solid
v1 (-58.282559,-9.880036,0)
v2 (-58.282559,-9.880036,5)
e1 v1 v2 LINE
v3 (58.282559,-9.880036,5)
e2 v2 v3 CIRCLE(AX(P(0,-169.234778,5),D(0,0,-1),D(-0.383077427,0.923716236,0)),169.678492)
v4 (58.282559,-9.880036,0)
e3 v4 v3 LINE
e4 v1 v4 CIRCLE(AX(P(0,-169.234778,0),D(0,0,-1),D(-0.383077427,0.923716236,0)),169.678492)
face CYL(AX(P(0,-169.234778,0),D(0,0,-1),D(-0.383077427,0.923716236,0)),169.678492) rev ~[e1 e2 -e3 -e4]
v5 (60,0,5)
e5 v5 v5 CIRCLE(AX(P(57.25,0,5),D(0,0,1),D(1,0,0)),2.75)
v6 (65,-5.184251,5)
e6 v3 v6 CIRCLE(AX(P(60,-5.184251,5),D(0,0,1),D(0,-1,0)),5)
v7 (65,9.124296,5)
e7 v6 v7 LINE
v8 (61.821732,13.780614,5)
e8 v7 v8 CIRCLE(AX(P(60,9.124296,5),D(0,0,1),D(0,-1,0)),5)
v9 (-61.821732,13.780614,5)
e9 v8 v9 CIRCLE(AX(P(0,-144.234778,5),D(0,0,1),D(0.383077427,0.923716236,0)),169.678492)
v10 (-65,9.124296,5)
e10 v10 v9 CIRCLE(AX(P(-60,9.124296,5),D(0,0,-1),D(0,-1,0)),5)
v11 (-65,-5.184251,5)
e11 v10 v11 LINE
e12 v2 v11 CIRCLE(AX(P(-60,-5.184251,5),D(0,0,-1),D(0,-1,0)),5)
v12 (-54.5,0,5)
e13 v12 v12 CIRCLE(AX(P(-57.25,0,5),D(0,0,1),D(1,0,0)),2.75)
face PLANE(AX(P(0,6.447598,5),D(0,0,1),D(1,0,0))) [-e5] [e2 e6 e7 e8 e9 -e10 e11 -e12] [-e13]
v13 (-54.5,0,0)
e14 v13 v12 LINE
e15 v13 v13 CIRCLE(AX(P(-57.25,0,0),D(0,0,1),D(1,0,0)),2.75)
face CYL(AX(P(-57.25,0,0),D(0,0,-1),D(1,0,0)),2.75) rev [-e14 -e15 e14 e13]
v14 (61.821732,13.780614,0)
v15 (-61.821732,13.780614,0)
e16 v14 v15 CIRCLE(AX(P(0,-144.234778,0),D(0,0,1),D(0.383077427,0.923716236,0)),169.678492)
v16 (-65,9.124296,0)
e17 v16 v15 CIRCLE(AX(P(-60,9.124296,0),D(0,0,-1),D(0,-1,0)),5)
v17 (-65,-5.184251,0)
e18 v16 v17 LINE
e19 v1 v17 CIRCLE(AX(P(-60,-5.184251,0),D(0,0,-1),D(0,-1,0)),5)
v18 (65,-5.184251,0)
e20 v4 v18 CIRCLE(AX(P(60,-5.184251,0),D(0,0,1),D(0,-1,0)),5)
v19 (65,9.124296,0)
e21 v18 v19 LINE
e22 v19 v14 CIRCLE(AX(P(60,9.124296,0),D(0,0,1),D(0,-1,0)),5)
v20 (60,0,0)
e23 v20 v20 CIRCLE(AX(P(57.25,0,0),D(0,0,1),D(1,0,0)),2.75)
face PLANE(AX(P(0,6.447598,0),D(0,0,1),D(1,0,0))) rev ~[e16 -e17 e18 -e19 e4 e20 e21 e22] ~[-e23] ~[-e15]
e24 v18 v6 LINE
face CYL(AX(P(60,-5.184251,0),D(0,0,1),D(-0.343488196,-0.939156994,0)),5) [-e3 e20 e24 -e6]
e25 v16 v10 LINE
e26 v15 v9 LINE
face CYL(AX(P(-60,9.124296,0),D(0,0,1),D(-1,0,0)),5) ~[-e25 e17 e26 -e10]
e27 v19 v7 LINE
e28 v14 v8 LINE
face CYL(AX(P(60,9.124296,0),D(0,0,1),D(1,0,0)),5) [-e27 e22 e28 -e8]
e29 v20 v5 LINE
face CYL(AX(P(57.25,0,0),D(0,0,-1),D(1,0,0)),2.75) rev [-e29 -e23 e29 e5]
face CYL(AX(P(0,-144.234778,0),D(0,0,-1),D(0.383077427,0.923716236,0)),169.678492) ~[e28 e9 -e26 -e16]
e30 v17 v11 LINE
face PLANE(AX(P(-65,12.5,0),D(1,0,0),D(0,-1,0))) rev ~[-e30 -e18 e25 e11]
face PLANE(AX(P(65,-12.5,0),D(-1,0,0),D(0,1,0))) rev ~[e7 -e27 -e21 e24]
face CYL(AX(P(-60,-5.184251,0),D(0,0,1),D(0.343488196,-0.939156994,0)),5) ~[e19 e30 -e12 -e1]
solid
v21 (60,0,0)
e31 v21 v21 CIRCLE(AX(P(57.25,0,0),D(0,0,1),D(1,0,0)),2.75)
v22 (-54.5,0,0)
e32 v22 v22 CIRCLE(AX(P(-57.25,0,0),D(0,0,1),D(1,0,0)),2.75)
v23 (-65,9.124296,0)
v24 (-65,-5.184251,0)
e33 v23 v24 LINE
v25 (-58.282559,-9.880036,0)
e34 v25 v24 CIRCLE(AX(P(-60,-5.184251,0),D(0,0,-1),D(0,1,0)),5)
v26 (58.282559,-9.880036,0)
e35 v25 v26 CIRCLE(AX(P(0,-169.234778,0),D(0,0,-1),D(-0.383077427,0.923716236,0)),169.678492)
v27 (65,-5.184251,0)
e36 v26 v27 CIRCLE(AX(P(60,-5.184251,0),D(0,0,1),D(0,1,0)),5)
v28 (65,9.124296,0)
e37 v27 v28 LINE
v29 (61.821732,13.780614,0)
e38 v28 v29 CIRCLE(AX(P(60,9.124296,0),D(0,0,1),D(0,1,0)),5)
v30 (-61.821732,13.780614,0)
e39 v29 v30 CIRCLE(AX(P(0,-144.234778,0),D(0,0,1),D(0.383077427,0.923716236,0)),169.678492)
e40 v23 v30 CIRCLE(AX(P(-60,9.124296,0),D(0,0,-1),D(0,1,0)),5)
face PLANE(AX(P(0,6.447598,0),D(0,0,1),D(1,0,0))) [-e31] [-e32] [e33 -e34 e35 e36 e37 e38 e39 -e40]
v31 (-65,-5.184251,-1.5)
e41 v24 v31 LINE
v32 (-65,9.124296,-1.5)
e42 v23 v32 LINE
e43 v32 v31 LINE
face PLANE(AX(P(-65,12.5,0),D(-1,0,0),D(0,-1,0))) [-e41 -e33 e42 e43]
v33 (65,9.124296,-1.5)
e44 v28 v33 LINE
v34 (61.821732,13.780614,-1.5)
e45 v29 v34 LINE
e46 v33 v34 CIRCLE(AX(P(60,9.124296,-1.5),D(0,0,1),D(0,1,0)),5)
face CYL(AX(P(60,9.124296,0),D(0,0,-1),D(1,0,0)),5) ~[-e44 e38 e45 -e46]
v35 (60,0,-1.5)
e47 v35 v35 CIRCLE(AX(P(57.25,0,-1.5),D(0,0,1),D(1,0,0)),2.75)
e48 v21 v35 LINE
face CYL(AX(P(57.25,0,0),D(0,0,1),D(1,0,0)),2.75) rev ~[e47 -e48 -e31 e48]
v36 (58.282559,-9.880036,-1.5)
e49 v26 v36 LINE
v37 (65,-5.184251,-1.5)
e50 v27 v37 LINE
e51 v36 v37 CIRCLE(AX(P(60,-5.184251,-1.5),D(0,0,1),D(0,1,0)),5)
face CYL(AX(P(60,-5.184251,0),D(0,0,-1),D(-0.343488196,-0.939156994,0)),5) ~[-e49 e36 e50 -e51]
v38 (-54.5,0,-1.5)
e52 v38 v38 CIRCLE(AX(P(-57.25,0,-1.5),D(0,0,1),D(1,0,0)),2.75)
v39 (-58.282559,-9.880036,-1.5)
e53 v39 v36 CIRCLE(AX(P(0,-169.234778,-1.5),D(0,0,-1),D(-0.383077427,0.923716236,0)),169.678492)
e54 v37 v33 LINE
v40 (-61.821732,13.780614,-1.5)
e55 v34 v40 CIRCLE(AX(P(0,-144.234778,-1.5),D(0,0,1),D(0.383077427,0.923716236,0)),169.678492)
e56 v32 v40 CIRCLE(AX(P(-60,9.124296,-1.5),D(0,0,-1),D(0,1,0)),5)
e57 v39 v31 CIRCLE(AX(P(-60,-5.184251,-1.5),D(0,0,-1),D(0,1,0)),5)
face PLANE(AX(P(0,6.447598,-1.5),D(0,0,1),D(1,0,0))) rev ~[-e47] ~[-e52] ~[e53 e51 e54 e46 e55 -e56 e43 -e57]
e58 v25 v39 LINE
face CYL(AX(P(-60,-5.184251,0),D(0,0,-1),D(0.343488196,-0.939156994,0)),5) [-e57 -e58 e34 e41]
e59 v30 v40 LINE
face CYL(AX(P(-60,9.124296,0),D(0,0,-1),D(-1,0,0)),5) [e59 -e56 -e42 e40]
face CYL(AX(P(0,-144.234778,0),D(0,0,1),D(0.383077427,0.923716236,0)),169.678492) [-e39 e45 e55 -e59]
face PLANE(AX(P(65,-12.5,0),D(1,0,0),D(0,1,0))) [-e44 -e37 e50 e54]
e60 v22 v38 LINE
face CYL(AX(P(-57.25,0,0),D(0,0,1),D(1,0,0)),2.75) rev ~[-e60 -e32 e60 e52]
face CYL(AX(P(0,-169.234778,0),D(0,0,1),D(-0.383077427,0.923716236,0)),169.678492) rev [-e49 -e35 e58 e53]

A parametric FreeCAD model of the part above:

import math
import FreeCAD as App
import Part
import Sketcher

V = App.Vector


def edges_at(feature, points):
    """Names of the edges that pass closest to the given points."""
    edges = feature.Shape.Edges
    near = lambda p: min(range(len(edges)), key=lambda i: edges[i].distToShape(Part.Vertex(*p))[0])
    return sorted({f"Edge{near(p) + 1}" for p in points})

doc = App.newDocument("Part")
params = doc.addObject("Spreadsheet::Sheet", "Params")
for row, (alias, value) in enumerate([
    ("sketch1_diameter", "5.5 mm"),
    ("sketch1_height", "25 mm"),
    ("pad1_length", "5 mm"),
    ("fillet_radius", "5 mm"),
    ("sketch2_diameter", "5.5 mm"),
    ("sketch2_height", "25 mm"),
    ("pad2_length", "1.5 mm"),
    ("fillet2_radius", "5 mm"),
], start=1):
    params.set(f"A{row}", alias)
    params.set(f"B{row}", "=" + value)
    params.setAlias(f"B{row}", alias)

body = doc.addObject("PartDesign::Body", "Body")

sketch1 = body.newObject("Sketcher::SketchObject", "Sketch")
sketch1.AttachmentSupport = (doc.getObject("XY_Plane"), [""])
sketch1.MapMode = "FlatFace"
sketch1.addGeometry([
    Part.ArcOfCircle(Part.Circle(V(0, -169.2, 0), V(0, 0, 1), 169.7), math.radians(67), math.radians(113)),
    Part.LineSegment(V(65, -12.5, 0), V(65, 12.5, 0)),
    Part.ArcOfCircle(Part.Circle(V(0, -144.2, 0), V(0, 0, 1), 169.7), math.radians(67), math.radians(113)),
    Part.LineSegment(V(-65, 12.5, 0), V(-65, -12.5, 0)),
    Part.Circle(V(-57.2, 0, 0), V(0, 0, 1), 2.8),
    Part.Circle(V(57.2, 0, 0), V(0, 0, 1), 2.8),
], False)
sketch1.addConstraint([
    Sketcher.Constraint("Coincident", 0, 1, 1, 1),
    Sketcher.Constraint("Coincident", 1, 2, 2, 1),
    Sketcher.Constraint("Coincident", 2, 2, 3, 1),
    Sketcher.Constraint("Coincident", 3, 2, 0, 2),
    Sketcher.Constraint("Vertical", 1),
    Sketcher.Constraint("Vertical", 3),
    Sketcher.Constraint("Equal", 0, 2),
    Sketcher.Constraint("Equal", 4, 5),
    Sketcher.Constraint("Symmetric", 4, 3, 5, 3, -1, 1),
    Sketcher.Constraint("Symmetric", 0, 1, 2, 2, -1, 1),
    Sketcher.Constraint("PointOnObject", 0, 3, -2),
    Sketcher.Constraint("PointOnObject", 2, 3, -2),
    Sketcher.Constraint("PointOnObject", 4, 3, -1),
    Sketcher.Constraint("Diameter", 4, 5.5),
    Sketcher.Constraint("DistanceY", 1, 1, 1, 2, 25.0),
    Sketcher.Constraint("DistanceX", -1, 1, 0, 1, 65.0),
    Sketcher.Constraint("DistanceX", 4, 3, 5, 3, 114.5),
    Sketcher.Constraint("Radius", 0, 169.678492),
])
sketch1.setExpression("Constraints[13]", "Params.sketch1_diameter")
sketch1.setExpression("Constraints[14]", "Params.sketch1_height")
pad1 = body.newObject("PartDesign::Pad", "Pad")
pad1.Profile = sketch1
pad1.setExpression("Length", "Params.pad1_length")
doc.recompute()

fillet = body.newObject("PartDesign::Fillet", "Fillet")
fillet.Base = (pad1, edges_at(pad1, [
    (-65, -12.5, 2.5),
    (65, -12.5, 2.5),
    (65, 12.5, 2.5),
    (-65, 12.5, 2.5),
]))
fillet.setExpression("Radius", "Params.fillet_radius")
body2 = doc.addObject("PartDesign::Body", "Body001")

sketch2 = body2.newObject("Sketcher::SketchObject", "Sketch001")
sketch2.AttachmentSupport = (doc.getObject("XY_Plane001"), [""])
sketch2.MapMode = "FlatFace"
sketch2.addGeometry([
    Part.ArcOfCircle(Part.Circle(V(0, -169.2, 0), V(0, 0, 1), 169.7), math.radians(67), math.radians(113)),
    Part.LineSegment(V(65, -12.5, 0), V(65, 12.5, 0)),
    Part.ArcOfCircle(Part.Circle(V(0, -144.2, 0), V(0, 0, 1), 169.7), math.radians(67), math.radians(113)),
    Part.LineSegment(V(-65, 12.5, 0), V(-65, -12.5, 0)),
    Part.Circle(V(-57.2, 0, 0), V(0, 0, 1), 2.8),
    Part.Circle(V(57.2, 0, 0), V(0, 0, 1), 2.8),
], False)
sketch2.addConstraint([
    Sketcher.Constraint("Coincident", 0, 1, 1, 1),
    Sketcher.Constraint("Coincident", 1, 2, 2, 1),
    Sketcher.Constraint("Coincident", 2, 2, 3, 1),
    Sketcher.Constraint("Coincident", 3, 2, 0, 2),
    Sketcher.Constraint("Vertical", 1),
    Sketcher.Constraint("Vertical", 3),
    Sketcher.Constraint("Equal", 0, 2),
    Sketcher.Constraint("Equal", 4, 5),
    Sketcher.Constraint("Symmetric", 4, 3, 5, 3, -1, 1),
    Sketcher.Constraint("Symmetric", 0, 1, 2, 2, -1, 1),
    Sketcher.Constraint("PointOnObject", 0, 3, -2),
    Sketcher.Constraint("PointOnObject", 2, 3, -2),
    Sketcher.Constraint("PointOnObject", 4, 3, -1),
    Sketcher.Constraint("Diameter", 4, 5.5),
    Sketcher.Constraint("DistanceY", 1, 1, 1, 2, 25.0),
    Sketcher.Constraint("DistanceX", -1, 1, 0, 1, 65.0),
    Sketcher.Constraint("DistanceX", 4, 3, 5, 3, 114.5),
    Sketcher.Constraint("Radius", 0, 169.678492),
])
sketch2.setExpression("Constraints[13]", "Params.sketch2_diameter")
sketch2.setExpression("Constraints[14]", "Params.sketch2_height")
pad2 = body2.newObject("PartDesign::Pad", "Pad001")
pad2.Profile = sketch2
pad2.setExpression("Length", "Params.pad2_length")
pad2.Reversed = True
doc.recompute()

fillet2 = body2.newObject("PartDesign::Fillet", "Fillet001")
fillet2.Base = (pad2, edges_at(pad2, [
    (-65, -12.5, -0.75),
    (65, -12.5, -0.75),
    (65, 12.5, -0.75),
    (-65, 12.5, -0.75),
]))
fillet2.setExpression("Radius", "Params.fillet2_radius")

doc.recompute()
